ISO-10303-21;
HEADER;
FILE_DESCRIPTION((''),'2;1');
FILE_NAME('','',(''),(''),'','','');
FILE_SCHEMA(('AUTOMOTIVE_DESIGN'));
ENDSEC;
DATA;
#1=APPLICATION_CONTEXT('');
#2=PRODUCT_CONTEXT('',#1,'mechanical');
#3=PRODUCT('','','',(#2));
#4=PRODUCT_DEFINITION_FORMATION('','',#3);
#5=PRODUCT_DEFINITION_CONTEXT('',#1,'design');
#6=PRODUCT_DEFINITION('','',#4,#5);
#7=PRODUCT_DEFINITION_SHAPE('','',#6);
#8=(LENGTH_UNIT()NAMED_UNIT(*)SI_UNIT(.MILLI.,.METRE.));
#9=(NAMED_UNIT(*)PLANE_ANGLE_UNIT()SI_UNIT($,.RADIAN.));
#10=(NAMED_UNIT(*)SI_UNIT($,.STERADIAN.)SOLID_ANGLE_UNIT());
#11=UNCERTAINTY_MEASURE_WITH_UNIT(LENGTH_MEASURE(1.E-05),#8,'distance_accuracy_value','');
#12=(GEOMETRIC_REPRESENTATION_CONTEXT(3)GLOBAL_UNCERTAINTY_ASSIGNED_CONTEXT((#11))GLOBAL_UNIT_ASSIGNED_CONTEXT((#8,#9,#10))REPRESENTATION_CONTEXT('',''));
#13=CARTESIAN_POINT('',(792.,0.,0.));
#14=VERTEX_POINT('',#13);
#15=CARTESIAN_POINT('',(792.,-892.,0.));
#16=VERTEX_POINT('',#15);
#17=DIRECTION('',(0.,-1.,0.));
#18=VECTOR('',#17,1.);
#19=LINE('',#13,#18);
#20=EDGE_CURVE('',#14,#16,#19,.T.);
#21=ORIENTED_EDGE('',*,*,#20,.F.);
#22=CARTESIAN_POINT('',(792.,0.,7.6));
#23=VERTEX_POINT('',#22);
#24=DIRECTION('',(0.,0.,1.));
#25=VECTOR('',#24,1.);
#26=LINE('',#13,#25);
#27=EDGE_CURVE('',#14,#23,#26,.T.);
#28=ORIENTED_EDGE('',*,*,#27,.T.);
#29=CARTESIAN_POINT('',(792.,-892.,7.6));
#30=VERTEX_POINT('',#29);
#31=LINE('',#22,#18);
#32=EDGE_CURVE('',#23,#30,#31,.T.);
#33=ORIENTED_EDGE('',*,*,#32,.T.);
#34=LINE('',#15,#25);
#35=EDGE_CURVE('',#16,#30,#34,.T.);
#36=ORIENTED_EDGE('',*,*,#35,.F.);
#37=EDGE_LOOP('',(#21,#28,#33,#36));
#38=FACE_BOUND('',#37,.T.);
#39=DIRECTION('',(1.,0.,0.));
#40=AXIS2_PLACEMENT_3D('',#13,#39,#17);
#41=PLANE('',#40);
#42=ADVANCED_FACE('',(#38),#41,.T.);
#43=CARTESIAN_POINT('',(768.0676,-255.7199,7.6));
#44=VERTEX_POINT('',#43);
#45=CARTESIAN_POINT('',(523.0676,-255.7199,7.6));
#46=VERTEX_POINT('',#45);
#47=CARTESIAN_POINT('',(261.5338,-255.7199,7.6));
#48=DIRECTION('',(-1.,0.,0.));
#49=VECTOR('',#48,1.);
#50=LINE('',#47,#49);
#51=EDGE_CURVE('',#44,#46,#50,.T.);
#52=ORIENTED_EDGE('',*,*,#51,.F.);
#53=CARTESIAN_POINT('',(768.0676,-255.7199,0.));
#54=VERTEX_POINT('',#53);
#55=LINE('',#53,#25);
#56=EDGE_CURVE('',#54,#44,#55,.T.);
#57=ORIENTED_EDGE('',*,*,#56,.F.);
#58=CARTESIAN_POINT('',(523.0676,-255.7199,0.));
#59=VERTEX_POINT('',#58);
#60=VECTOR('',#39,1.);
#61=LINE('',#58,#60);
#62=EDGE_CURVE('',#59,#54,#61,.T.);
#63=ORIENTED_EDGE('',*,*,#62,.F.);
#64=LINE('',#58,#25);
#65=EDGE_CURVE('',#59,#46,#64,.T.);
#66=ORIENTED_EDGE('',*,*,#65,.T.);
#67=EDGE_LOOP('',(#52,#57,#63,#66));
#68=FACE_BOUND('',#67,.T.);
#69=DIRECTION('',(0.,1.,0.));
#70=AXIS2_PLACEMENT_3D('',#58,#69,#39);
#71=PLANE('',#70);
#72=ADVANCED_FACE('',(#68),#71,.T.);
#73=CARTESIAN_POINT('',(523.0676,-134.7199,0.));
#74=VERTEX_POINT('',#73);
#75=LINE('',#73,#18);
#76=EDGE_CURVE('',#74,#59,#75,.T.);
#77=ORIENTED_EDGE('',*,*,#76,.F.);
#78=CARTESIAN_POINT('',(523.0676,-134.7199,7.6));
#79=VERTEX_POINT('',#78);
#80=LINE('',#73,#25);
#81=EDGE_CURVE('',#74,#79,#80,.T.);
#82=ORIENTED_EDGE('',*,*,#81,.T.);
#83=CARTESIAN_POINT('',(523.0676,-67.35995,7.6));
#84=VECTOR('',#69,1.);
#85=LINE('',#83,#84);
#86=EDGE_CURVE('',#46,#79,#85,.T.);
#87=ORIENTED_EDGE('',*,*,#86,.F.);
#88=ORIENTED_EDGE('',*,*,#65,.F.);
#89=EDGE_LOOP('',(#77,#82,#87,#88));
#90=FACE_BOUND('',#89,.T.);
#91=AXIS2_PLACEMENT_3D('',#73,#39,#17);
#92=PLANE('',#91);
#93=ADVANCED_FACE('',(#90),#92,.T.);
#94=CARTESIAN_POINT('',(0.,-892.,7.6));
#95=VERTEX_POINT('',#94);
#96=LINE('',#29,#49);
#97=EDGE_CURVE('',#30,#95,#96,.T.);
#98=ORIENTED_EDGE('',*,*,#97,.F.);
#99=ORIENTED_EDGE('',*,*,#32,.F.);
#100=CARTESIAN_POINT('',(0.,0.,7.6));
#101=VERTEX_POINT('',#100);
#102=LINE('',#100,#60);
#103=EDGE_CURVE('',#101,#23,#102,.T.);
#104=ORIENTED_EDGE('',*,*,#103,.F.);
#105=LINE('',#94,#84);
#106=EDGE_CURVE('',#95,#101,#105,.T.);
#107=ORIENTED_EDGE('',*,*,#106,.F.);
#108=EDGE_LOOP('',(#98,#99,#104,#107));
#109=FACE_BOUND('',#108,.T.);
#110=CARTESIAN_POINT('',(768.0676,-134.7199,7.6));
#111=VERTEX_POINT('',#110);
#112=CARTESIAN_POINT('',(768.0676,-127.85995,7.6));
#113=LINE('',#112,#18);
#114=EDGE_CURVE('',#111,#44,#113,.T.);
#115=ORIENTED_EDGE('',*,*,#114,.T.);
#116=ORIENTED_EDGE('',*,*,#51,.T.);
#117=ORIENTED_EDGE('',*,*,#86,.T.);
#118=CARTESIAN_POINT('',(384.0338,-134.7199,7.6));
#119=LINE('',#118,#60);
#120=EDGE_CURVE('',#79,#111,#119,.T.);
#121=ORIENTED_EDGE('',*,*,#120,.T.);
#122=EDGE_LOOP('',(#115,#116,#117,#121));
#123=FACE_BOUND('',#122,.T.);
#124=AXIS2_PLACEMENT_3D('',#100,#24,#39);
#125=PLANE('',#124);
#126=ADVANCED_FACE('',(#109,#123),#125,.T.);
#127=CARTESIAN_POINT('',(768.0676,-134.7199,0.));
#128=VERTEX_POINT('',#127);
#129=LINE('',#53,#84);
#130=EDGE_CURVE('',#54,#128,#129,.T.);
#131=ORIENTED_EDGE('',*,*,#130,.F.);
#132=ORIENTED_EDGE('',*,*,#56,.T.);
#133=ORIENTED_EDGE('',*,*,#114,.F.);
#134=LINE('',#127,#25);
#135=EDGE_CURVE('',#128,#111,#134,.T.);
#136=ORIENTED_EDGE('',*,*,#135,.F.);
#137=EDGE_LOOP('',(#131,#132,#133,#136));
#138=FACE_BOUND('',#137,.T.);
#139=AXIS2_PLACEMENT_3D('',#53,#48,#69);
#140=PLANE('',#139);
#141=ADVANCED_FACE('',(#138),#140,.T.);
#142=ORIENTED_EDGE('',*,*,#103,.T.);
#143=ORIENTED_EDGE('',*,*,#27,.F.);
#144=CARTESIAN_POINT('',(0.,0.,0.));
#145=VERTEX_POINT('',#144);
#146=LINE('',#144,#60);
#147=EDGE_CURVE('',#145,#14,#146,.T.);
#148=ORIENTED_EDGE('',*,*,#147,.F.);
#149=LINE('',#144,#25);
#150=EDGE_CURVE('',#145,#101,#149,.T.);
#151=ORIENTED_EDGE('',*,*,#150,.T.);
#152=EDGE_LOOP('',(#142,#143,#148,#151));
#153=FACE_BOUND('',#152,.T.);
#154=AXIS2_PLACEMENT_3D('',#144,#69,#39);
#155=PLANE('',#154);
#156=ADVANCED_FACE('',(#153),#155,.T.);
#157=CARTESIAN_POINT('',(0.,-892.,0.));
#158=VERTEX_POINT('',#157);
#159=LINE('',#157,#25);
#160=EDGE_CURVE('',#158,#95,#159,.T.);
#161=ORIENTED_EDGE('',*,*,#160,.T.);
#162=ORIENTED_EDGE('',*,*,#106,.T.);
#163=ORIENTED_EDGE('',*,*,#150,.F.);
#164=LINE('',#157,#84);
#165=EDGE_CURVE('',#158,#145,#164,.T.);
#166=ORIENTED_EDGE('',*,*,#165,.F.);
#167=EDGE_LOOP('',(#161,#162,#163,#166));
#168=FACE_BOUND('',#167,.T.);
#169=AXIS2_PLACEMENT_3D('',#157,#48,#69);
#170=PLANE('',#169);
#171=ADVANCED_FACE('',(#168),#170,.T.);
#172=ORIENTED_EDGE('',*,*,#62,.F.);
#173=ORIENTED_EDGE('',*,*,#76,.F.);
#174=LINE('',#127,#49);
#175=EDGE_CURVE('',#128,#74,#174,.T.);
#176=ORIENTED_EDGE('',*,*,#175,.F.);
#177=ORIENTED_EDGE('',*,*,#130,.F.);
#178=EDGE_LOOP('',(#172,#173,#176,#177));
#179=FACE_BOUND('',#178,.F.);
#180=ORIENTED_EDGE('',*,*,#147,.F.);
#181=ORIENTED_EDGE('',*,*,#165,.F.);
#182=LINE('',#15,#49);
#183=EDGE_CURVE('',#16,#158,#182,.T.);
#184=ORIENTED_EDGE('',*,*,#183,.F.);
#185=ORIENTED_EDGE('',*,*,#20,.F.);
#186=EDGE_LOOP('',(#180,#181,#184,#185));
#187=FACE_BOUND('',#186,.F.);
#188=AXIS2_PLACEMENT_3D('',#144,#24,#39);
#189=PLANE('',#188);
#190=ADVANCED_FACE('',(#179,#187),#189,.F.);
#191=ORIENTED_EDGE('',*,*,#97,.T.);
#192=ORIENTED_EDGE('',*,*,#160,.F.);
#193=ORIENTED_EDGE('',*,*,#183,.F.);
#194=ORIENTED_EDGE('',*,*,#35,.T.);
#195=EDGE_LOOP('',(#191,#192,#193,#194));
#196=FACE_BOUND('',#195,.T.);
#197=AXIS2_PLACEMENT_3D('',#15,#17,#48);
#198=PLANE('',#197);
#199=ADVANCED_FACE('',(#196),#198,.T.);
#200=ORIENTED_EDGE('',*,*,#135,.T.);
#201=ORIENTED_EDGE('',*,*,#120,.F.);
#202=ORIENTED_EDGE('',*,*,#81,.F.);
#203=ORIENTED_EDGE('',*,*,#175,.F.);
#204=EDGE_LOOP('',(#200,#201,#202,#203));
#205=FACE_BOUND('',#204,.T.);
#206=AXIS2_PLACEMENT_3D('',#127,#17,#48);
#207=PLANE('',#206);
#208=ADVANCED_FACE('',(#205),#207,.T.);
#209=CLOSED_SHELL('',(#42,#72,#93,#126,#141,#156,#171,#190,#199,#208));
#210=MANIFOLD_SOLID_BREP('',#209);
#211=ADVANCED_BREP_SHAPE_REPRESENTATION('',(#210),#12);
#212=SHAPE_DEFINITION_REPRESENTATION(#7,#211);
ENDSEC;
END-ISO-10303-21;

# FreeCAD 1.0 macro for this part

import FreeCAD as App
import Part
import Sketcher
Q = App.Units.Quantity

doc = App.newDocument("Part")
body = doc.addObject("PartDesign::Body", "Body")

sketch1 = body.newObject("Sketcher::SketchObject", "Sketch")
sketch1.AttachmentSupport = (doc.getObject("XY_Plane"), [""])
sketch1.MapMode = "FlatFace"
sketch1.addGeometry([
    Part.LineSegment(App.Vector(792, 0, 0), App.Vector(0, 0, 0)),
    Part.LineSegment(App.Vector(0, 0, 0), App.Vector(0, -892, 0)),
    Part.LineSegment(App.Vector(0, -892, 0), App.Vector(792, -892, 0)),
    Part.LineSegment(App.Vector(792, -892, 0), App.Vector(792, 0, 0)),
], False)
sketch1.addConstraint([
    Sketcher.Constraint("Coincident", 0, 2, 1, 1),
    Sketcher.Constraint("Coincident", 1, 2, 2, 1),
    Sketcher.Constraint("Coincident", 2, 2, 3, 1),
    Sketcher.Constraint("Coincident", 3, 2, 0, 1),
    Sketcher.Constraint("Horizontal", 0),
    Sketcher.Constraint("Vertical", 1),
    Sketcher.Constraint("Horizontal", 2),
    Sketcher.Constraint("Vertical", 3),
    Sketcher.Constraint("Coincident", 0, 2, -1, 1),
    Sketcher.Constraint("DistanceX", 0, 2, 0, 1, Q("792 mm")),
    Sketcher.Constraint("DistanceY", 1, 2, 1, 1, Q("892 mm")),
])
pad1 = body.newObject("PartDesign::Pad", "Pad")
pad1.Profile = sketch1
pad1.Length = 7.6

sketch2 = body.newObject("Sketcher::SketchObject", "Sketch001")
sketch2.AttachmentSupport = (doc.getObject("XY_Plane"), [""])
sketch2.MapMode = "FlatFace"
sketch2.addGeometry([
    Part.LineSegment(App.Vector(523, -135, 0), App.Vector(768, -135, 0)),
    Part.LineSegment(App.Vector(768, -135, 0), App.Vector(768, -256, 0)),
    Part.LineSegment(App.Vector(768, -256, 0), App.Vector(523, -256, 0)),
    Part.LineSegment(App.Vector(523, -256, 0), App.Vector(523, -135, 0)),
], False)
sketch2.addConstraint([
    Sketcher.Constraint("Coincident", 0, 2, 1, 1),
    Sketcher.Constraint("Coincident", 1, 2, 2, 1),
    Sketcher.Constraint("Coincident", 2, 2, 3, 1),
    Sketcher.Constraint("Coincident", 3, 2, 0, 1),
    Sketcher.Constraint("Horizontal", 0),
    Sketcher.Constraint("Vertical", 1),
    Sketcher.Constraint("Horizontal", 2),
    Sketcher.Constraint("Vertical", 3),
    Sketcher.Constraint("DistanceX", 0, 1, 0, 2, Q("245 mm")),
    Sketcher.Constraint("DistanceY", 1, 2, 1, 1, Q("121 mm")),
    Sketcher.Constraint("DistanceY", 0, 2, -1, 1, Q("134.72 mm")),
    Sketcher.Constraint("DistanceX", -1, 1, 0, 2, Q("768.0676 mm")),
])
pocket1 = body.newObject("PartDesign::Pocket", "Pocket")
pocket1.Profile = sketch2
pocket1.Length = 10
pocket1.Reversed = True

doc.recompute()
